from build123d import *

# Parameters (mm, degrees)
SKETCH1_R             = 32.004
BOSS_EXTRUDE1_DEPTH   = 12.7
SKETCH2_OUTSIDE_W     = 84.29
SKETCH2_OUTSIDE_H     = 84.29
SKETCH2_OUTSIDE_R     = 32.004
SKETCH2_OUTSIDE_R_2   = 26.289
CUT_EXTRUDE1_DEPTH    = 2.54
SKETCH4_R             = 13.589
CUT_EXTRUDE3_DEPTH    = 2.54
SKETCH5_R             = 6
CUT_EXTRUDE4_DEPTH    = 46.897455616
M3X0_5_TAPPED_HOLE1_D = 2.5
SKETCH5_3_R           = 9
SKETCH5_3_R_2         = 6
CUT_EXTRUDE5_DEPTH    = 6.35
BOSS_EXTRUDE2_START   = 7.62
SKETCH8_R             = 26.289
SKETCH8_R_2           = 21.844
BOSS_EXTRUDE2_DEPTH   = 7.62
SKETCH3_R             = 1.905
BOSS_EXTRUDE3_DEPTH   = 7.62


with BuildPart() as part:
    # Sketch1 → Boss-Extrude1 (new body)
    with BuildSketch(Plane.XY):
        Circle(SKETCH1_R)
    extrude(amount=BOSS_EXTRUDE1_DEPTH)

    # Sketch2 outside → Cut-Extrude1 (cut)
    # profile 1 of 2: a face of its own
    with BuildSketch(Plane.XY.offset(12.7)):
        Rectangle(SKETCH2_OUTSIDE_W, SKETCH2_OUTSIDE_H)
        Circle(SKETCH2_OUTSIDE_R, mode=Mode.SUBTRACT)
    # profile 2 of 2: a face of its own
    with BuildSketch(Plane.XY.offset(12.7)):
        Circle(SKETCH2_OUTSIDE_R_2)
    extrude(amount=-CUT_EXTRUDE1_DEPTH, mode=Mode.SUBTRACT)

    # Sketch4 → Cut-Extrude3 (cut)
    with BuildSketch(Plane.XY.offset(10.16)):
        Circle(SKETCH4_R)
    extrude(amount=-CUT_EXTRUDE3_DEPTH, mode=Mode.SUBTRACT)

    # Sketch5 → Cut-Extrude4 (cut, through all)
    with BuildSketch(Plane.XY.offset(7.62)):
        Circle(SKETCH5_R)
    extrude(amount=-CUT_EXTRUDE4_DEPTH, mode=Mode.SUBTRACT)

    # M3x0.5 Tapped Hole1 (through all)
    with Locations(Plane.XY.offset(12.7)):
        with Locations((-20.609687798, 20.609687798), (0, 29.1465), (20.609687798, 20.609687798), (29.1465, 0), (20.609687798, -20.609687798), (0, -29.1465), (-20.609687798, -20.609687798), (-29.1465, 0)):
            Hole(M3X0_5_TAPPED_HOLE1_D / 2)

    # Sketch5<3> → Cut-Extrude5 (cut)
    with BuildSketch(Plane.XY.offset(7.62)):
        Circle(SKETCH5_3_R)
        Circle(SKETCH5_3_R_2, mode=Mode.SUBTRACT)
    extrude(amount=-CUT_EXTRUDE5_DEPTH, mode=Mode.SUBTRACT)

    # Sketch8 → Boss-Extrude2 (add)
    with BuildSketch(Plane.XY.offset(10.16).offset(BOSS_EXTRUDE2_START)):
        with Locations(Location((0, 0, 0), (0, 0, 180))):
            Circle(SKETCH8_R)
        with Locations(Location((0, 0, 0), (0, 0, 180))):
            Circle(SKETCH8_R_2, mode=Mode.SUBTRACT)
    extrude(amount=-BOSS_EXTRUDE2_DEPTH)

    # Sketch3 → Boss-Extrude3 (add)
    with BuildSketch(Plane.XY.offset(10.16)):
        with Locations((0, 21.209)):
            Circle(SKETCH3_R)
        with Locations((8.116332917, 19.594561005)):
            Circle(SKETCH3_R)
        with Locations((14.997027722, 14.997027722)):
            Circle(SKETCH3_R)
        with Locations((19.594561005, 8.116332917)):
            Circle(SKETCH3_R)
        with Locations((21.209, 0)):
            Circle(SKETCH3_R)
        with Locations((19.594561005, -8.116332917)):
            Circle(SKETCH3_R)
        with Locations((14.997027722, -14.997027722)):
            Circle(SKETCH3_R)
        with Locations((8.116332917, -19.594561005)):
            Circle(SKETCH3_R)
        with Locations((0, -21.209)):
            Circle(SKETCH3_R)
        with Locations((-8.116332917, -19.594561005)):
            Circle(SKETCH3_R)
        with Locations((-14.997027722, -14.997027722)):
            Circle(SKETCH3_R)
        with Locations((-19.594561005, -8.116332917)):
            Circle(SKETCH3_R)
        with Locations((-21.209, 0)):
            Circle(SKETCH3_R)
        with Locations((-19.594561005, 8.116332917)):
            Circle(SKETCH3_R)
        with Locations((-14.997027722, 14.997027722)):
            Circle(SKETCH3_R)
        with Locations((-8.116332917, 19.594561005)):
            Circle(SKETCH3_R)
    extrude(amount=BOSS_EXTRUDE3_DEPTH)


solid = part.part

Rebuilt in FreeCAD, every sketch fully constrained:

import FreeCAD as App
import Part
import Sketcher
from FreeCAD import Vector
Q = App.Units.Quantity


def add_polygon(sketch, points):
    """Adds a closed chain of lines whose ends are joined by coincident constraints."""
    first, n = sketch.GeometryCount, len(points)
    for a, b in zip(points, points[1:] + points[:1]):
        sketch.addGeometry(Part.LineSegment(App.Vector(*a, 0), App.Vector(*b, 0)), False)
    for i in range(n):
        sketch.addConstraint(Sketcher.Constraint("Coincident", first + i, 2, first + (i + 1) % n, 1))

doc = App.newDocument("Part")
params = doc.addObject("Spreadsheet::Sheet", "Params")
for row, (alias, value) in enumerate([
    ("sketch1_diameter", "2.52 in"),
    ("pad1_length", "0.5 in"),
    ("sketch2_diameter", "2.52 in"),
    ("sketch2_diameter2", "2.07 in"),
    ("pocket1_length", "0.1 in"),
    ("sketch3_diameter", "1.07 in"),
    ("pocket2_length", "0.1 in"),
    ("hole_diameter", "2.5 mm"),
    ("pocket4_length", "0.25 in"),
    ("sketch7_diameter", "2.07 in"),
    ("sketch7_diameter2", "1.72 in"),
    ("pad2_length", "0.3 in"),
    ("sketch8_diameter", "0.15 in"),
    ("pad3_length", "0.3 in"),
], start=1):
    params.set(f"A{row}", alias)
    params.set(f"B{row}", "=" + value)
    params.setAlias(f"B{row}", alias)

body = doc.addObject("PartDesign::Body", "Body")

# Sketch on XY plane
sketch1 = body.newObject("Sketcher::SketchObject", "Sketch")
sketch1.AttachmentSupport = (doc.getObject("XY_Plane"), [""])
sketch1.MapMode = "FlatFace"
sketch1.addGeometry(Part.Circle(Vector(0, 0, 0), Vector(0, 0, 1), 32), False)
sketch1.addConstraint(Sketcher.Constraint("Coincident", 0, 3, -1, 1))
sketch1.addConstraint(Sketcher.Constraint("Diameter", 0, Q("2.52 in")))
sketch1.setExpression("Constraints[1]", "Params.sketch1_diameter")
pad1 = body.newObject("PartDesign::Pad", "Pad")
pad1.Profile = sketch1
pad1.setExpression("Length", "Params.pad1_length")

# Sketch on XY plane
sketch2 = body.newObject("Sketcher::SketchObject", "Sketch001")
sketch2.AttachmentSupport = (doc.getObject("XY_Plane"), [""])
sketch2.MapMode = "FlatFace"
sketch2.AttachmentOffset = App.Placement(Vector(0, 0, 0.5 * 25.4), App.Rotation())
add_polygon(sketch2, [(-42, 42), (-42, -42), (42, -42), (42, 42)])  # lines 0-3
sketch2.addGeometry(Part.Circle(Vector(0, 0, 0), Vector(0, 0, 1), 32), False)  # 4
sketch2.addGeometry(Part.Circle(Vector(0, 0, 0), Vector(0, 0, 1), 26), False)  # 5
sketch2.addConstraint(Sketcher.Constraint("Vertical", 0))
sketch2.addConstraint(Sketcher.Constraint("Horizontal", 1))
sketch2.addConstraint(Sketcher.Constraint("Vertical", 2))
sketch2.addConstraint(Sketcher.Constraint("Horizontal", 3))
sketch2.addConstraint(Sketcher.Constraint("Coincident", 4, 3, -1, 1))
sketch2.addConstraint(Sketcher.Constraint("Coincident", 5, 3, -1, 1))
sketch2.addConstraint(Sketcher.Constraint("Symmetric", 0, 2, 2, 2, -1, 1))
sketch2.addConstraint(Sketcher.Constraint("Equal", 3, 0))
sketch2.addConstraint(Sketcher.Constraint("Diameter", 4, Q("2.52 in")))
sketch2.addConstraint(Sketcher.Constraint("Diameter", 5, Q("2.07 in")))
sketch2.addConstraint(Sketcher.Constraint("DistanceX", 1, 1, 1, 2, Q("84.29 mm")))
sketch2.setExpression("Constraints[12]", "Params.sketch2_diameter")
sketch2.setExpression("Constraints[13]", "Params.sketch2_diameter2")
pocket1 = body.newObject("PartDesign::Pocket", "Pocket")
pocket1.Profile = sketch2
pocket1.setExpression("Length", "Params.pocket1_length")

# Sketch on XY plane
sketch3 = body.newObject("Sketcher::SketchObject", "Sketch002")
sketch3.AttachmentSupport = (doc.getObject("XY_Plane"), [""])
sketch3.MapMode = "FlatFace"
sketch3.AttachmentOffset = App.Placement(Vector(0, 0, 0.4 * 25.4), App.Rotation())
sketch3.addGeometry(Part.Circle(Vector(0, 0, 0), Vector(0, 0, 1), 14), False)
sketch3.addConstraint(Sketcher.Constraint("Coincident", 0, 3, -1, 1))
sketch3.addConstraint(Sketcher.Constraint("Diameter", 0, Q("1.07 in")))
sketch3.setExpression("Constraints[1]", "Params.sketch3_diameter")
pocket2 = body.newObject("PartDesign::Pocket", "Pocket001")
pocket2.Profile = sketch3
pocket2.setExpression("Length", "Params.pocket2_length")

# Sketch on XY plane
sketch4 = body.newObject("Sketcher::SketchObject", "Sketch003")
sketch4.AttachmentSupport = (doc.getObject("XY_Plane"), [""])
sketch4.MapMode = "FlatFace"
sketch4.AttachmentOffset = App.Placement(Vector(0, 0, 0.3 * 25.4), App.Rotation())
sketch4.addGeometry(Part.Circle(Vector(0, 0, 0), Vector(0, 0, 1), 6), False)
sketch4.addConstraint(Sketcher.Constraint("Coincident", 0, 3, -1, 1))
sketch4.addConstraint(Sketcher.Constraint("Diameter", 0, Q("12 mm")))
pocket3 = body.newObject("PartDesign::Pocket", "Pocket002")
pocket3.Profile = sketch4
pocket3.Type = "ThroughAll"

# Sketch on XY plane
sketch5 = body.newObject("Sketcher::SketchObject", "Sketch004")
sketch5.AttachmentSupport = (doc.getObject("XY_Plane"), [""])
sketch5.MapMode = "FlatFace"
sketch5.AttachmentOffset = App.Placement(Vector(0, 0, 0.5 * 25.4), App.Rotation())
sketch5.addGeometry(Part.Circle(Vector(-20.6, 20.6, 0), Vector(0, 0, 1), 1.2), False)
sketch5.addGeometry(Part.Circle(Vector(0, 29.1, 0), Vector(0, 0, 1), 1.2), False)
sketch5.addGeometry(Part.Circle(Vector(20.6, 20.6, 0), Vector(0, 0, 1), 1.2), False)
sketch5.addGeometry(Part.Circle(Vector(29.1, 0, 0), Vector(0, 0, 1), 1.2), False)
sketch5.addGeometry(Part.Circle(Vector(20.6, -20.6, 0), Vector(0, 0, 1), 1.2), False)
sketch5.addGeometry(Part.Circle(Vector(0, -29.1, 0), Vector(0, 0, 1), 1.2), False)
sketch5.addGeometry(Part.Circle(Vector(-20.6, -20.6, 0), Vector(0, 0, 1), 1.2), False)
sketch5.addGeometry(Part.Circle(Vector(-29.1, 0, 0), Vector(0, 0, 1), 1.2), False)
sketch5.addConstraint(Sketcher.Constraint("Equal", 0, 1))
sketch5.addConstraint(Sketcher.Constraint("Equal", 1, 2))
sketch5.addConstraint(Sketcher.Constraint("Equal", 2, 3))
sketch5.addConstraint(Sketcher.Constraint("Equal", 3, 4))
sketch5.addConstraint(Sketcher.Constraint("Equal", 4, 5))
sketch5.addConstraint(Sketcher.Constraint("Equal", 5, 6))
sketch5.addConstraint(Sketcher.Constraint("Equal", 6, 7))
sketch5.addConstraint(Sketcher.Constraint("Symmetric", 0, 3, 4, 3, -1, 1))
sketch5.addConstraint(Sketcher.Constraint("Symmetric", 1, 3, 5, 3, -1, 1))
sketch5.addConstraint(Sketcher.Constraint("Symmetric", 2, 3, 6, 3, -1, 1))
sketch5.addConstraint(Sketcher.Constraint("Symmetric", 3, 3, 7, 3, -1, 1))
sketch5.addConstraint(Sketcher.Constraint("Symmetric", 0, 3, 2, 3, -2))
sketch5.addConstraint(Sketcher.Constraint("PointOnObject", 1, 3, -2))
sketch5.addConstraint(Sketcher.Constraint("PointOnObject", 3, 3, -1))
sketch5.addConstraint(Sketcher.Constraint("Diameter", 0, Q("2.5 mm")))
sketch5.addConstraint(Sketcher.Constraint("DistanceY", 5, 3, 1, 3, Q("2.295 in")))
sketch5.addConstraint(Sketcher.Constraint("DistanceX", -1, 1, 3, 3, Q("1.1475 in")))
sketch5.addConstraint(Sketcher.Constraint("DistanceX", 0, 3, -1, 1, Q("20.609688 mm")))
sketch5.addConstraint(Sketcher.Constraint("DistanceY", -1, 1, 0, 3, Q("20.609688 mm")))
doc.recompute()
hole = body.newObject("PartDesign::Hole", "Hole")
hole.Profile = sketch5
hole.ThreadType = "None"
hole.setExpression("Diameter", "Params.hole_diameter")
hole.DepthType = "ThroughAll"

# Sketch on XY plane
sketch6 = body.newObject("Sketcher::SketchObject", "Sketch005")
sketch6.AttachmentSupport = (doc.getObject("XY_Plane"), [""])
sketch6.MapMode = "FlatFace"
sketch6.AttachmentOffset = App.Placement(Vector(0, 0, 0.3 * 25.4), App.Rotation())
sketch6.addGeometry(Part.Circle(Vector(0, 0, 0), Vector(0, 0, 1), 9), False)
sketch6.addGeometry(Part.Circle(Vector(0, 0, 0), Vector(0, 0, 1), 6), False)
sketch6.addConstraint(Sketcher.Constraint("Coincident", 0, 3, -1, 1))
sketch6.addConstraint(Sketcher.Constraint("Coincident", 1, 3, -1, 1))
sketch6.addConstraint(Sketcher.Constraint("Diameter", 0, Q("18 mm")))
sketch6.addConstraint(Sketcher.Constraint("Diameter", 1, Q("12 mm")))
pocket4 = body.newObject("PartDesign::Pocket", "Pocket003")
pocket4.Profile = sketch6
pocket4.setExpression("Length", "Params.pocket4_length")

# Sketch on XY plane
sketch7 = body.newObject("Sketcher::SketchObject", "Sketch006")
sketch7.AttachmentSupport = (doc.getObject("XY_Plane"), [""])
sketch7.MapMode = "FlatFace"
sketch7.AttachmentOffset = App.Placement(Vector(0, 0, 0.7 * 25.4), App.Rotation())
sketch7.addGeometry(Part.Circle(Vector(0, 0, 0), Vector(0, 0, 1), 26), False)
sketch7.addGeometry(Part.Circle(Vector(0, 0, 0), Vector(0, 0, 1), 22), False)
sketch7.addConstraint(Sketcher.Constraint("Coincident", 0, 3, -1, 1))
sketch7.addConstraint(Sketcher.Constraint("Coincident", 1, 3, -1, 1))
sketch7.addConstraint(Sketcher.Constraint("Diameter", 0, Q("2.07 in")))
sketch7.addConstraint(Sketcher.Constraint("Diameter", 1, Q("1.72 in")))
sketch7.setExpression("Constraints[2]", "Params.sketch7_diameter")
sketch7.setExpression("Constraints[3]", "Params.sketch7_diameter2")
pad2 = body.newObject("PartDesign::Pad", "Pad001")
pad2.Profile = sketch7
pad2.setExpression("Length", "Params.pad2_length")
pad2.Reversed = True

# Sketch on XY plane
sketch8 = body.newObject("Sketcher::SketchObject", "Sketch007")
sketch8.AttachmentSupport = (doc.getObject("XY_Plane"), [""])
sketch8.MapMode = "FlatFace"
sketch8.AttachmentOffset = App.Placement(Vector(0, 0, 0.4 * 25.4), App.Rotation())
sketch8.addGeometry(Part.Circle(Vector(0, 21.2, 0), Vector(0, 0, 1), 1.9), False)
sketch8.addGeometry(Part.Circle(Vector(8.1, 19.6, 0), Vector(0, 0, 1), 1.9), False)
sketch8.addGeometry(Part.Circle(Vector(15, 15, 0), Vector(0, 0, 1), 1.9), False)
sketch8.addGeometry(Part.Circle(Vector(19.6, 8.1, 0), Vector(0, 0, 1), 1.9), False)
sketch8.addGeometry(Part.Circle(Vector(21.2, 0, 0), Vector(0, 0, 1), 1.9), False)
sketch8.addGeometry(Part.Circle(Vector(19.6, -8.1, 0), Vector(0, 0, 1), 1.9), False)
sketch8.addGeometry(Part.Circle(Vector(15, -15, 0), Vector(0, 0, 1), 1.9), False)
sketch8.addGeometry(Part.Circle(Vector(8.1, -19.6, 0), Vector(0, 0, 1), 1.9), False)
sketch8.addGeometry(Part.Circle(Vector(0, -21.2, 0), Vector(0, 0, 1), 1.9), False)
sketch8.addGeometry(Part.Circle(Vector(-8.1, -19.6, 0), Vector(0, 0, 1), 1.9), False)
sketch8.addGeometry(Part.Circle(Vector(-15, -15, 0), Vector(0, 0, 1), 1.9), False)
sketch8.addGeometry(Part.Circle(Vector(-19.6, -8.1, 0), Vector(0, 0, 1), 1.9), False)
sketch8.addGeometry(Part.Circle(Vector(-21.2, 0, 0), Vector(0, 0, 1), 1.9), False)
sketch8.addGeometry(Part.Circle(Vector(-19.6, 8.1, 0), Vector(0, 0, 1), 1.9), False)
sketch8.addGeometry(Part.Circle(Vector(-15, 15, 0), Vector(0, 0, 1), 1.9), False)
sketch8.addGeometry(Part.Circle(Vector(-8.1, 19.6, 0), Vector(0, 0, 1), 1.9), False)
sketch8.addConstraint(Sketcher.Constraint("Equal", 0, 1))
sketch8.addConstraint(Sketcher.Constraint("Equal", 1, 2))
sketch8.addConstraint(Sketcher.Constraint("Equal", 2, 3))
sketch8.addConstraint(Sketcher.Constraint("Equal", 3, 4))
sketch8.addConstraint(Sketcher.Constraint("Equal", 4, 5))
sketch8.addConstraint(Sketcher.Constraint("Equal", 5, 6))
sketch8.addConstraint(Sketcher.Constraint("Equal", 6, 7))
sketch8.addConstraint(Sketcher.Constraint("Equal", 7, 8))
sketch8.addConstraint(Sketcher.Constraint("Equal", 8, 9))
sketch8.addConstraint(Sketcher.Constraint("Equal", 9, 10))
sketch8.addConstraint(Sketcher.Constraint("Equal", 10, 11))
sketch8.addConstraint(Sketcher.Constraint("Equal", 11, 12))
sketch8.addConstraint(Sketcher.Constraint("Equal", 12, 13))
sketch8.addConstraint(Sketcher.Constraint("Equal", 13, 14))
sketch8.addConstraint(Sketcher.Constraint("Equal", 14, 15))
sketch8.addConstraint(Sketcher.Constraint("Symmetric", 0, 3, 8, 3, -1, 1))
sketch8.addConstraint(Sketcher.Constraint("Symmetric", 1, 3, 9, 3, -1, 1))
sketch8.addConstraint(Sketcher.Constraint("Symmetric", 2, 3, 10, 3, -1, 1))
sketch8.addConstraint(Sketcher.Constraint("Symmetric", 3, 3, 11, 3, -1, 1))
sketch8.addConstraint(Sketcher.Constraint("Symmetric", 4, 3, 12, 3, -1, 1))
sketch8.addConstraint(Sketcher.Constraint("Symmetric", 5, 3, 13, 3, -1, 1))
sketch8.addConstraint(Sketcher.Constraint("Symmetric", 6, 3, 14, 3, -1, 1))
sketch8.addConstraint(Sketcher.Constraint("Symmetric", 7, 3, 15, 3, -1, 1))
sketch8.addConstraint(Sketcher.Constraint("Symmetric", 7, 3, 9, 3, -2))
sketch8.addConstraint(Sketcher.Constraint("Symmetric", 6, 3, 10, 3, -2))
sketch8.addConstraint(Sketcher.Constraint("Symmetric", 5, 3, 11, 3, -2))
sketch8.addConstraint(Sketcher.Constraint("PointOnObject", 0, 3, -2))
sketch8.addConstraint(Sketcher.Constraint("PointOnObject", 4, 3, -1))
sketch8.addConstraint(Sketcher.Constraint("Diameter", 0, Q("0.15 in")))
sketch8.addConstraint(Sketcher.Constraint("DistanceY", -1, 1, 0, 3, Q("0.835 in")))
sketch8.addConstraint(Sketcher.Constraint("DistanceX", -1, 1, 4, 3, Q("0.835 in")))
sketch8.addConstraint(Sketcher.Constraint("DistanceY", -1, 1, 1, 3, Q("19.594561 mm")))
sketch8.addConstraint(Sketcher.Constraint("DistanceX", -1, 1, 3, 3, Q("19.594561 mm")))
sketch8.addConstraint(Sketcher.Constraint("DistanceX", 1, 3, 3, 3, Q("11.478228 mm")))
sketch8.addConstraint(Sketcher.Constraint("DistanceY", 3, 3, 1, 3, Q("11.478228 mm")))
sketch8.addConstraint(Sketcher.Constraint("DistanceY", 5, 3, 2, 3, Q("23.113361 mm")))
sketch8.addConstraint(Sketcher.Constraint("DistanceX", 9, 3, 6, 3, Q("23.113361 mm")))
sketch8.setExpression("Constraints[28]", "Params.sketch8_diameter")
pad3 = body.newObject("PartDesign::Pad", "Pad002")
pad3.Profile = sketch8
pad3.setExpression("Length", "Params.pad3_length")

doc.recompute()
